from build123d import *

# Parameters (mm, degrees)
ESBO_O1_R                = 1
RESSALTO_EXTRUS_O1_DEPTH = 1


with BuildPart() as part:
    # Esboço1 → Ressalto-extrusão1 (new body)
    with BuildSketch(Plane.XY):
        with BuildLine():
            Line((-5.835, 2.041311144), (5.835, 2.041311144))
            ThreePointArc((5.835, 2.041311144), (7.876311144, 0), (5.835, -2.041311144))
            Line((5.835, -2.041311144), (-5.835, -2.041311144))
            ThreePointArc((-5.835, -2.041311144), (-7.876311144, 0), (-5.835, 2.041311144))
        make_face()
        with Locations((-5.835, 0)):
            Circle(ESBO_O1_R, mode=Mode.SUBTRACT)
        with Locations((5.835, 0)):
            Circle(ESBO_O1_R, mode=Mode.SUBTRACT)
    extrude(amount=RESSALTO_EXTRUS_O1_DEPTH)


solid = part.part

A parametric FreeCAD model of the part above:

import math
import FreeCAD as App
import Part
import Sketcher

doc = App.newDocument("Part")
body = doc.addObject("PartDesign::Body", "Body")

# Sketch on XY plane
sketch1 = body.newObject("Sketcher::SketchObject", "Sketch")
sketch1.AttachmentSupport = (doc.getObject("XY_Plane"), [""])
sketch1.MapMode = "FlatFace"
sketch1.addGeometry([
    Part.LineSegment(App.Vector(5.8, 2, 0), App.Vector(-5.8, 2, 0)),  # 0
    Part.ArcOfCircle(Part.Circle(App.Vector(-5.8, 0, 0), App.Vector(0, 0, 1), 2), math.radians(90), math.radians(270)),  # 1
    Part.LineSegment(App.Vector(-5.8, -2, 0), App.Vector(5.8, -2, 0)),  # 2
    Part.ArcOfCircle(Part.Circle(App.Vector(5.8, 0, 0), App.Vector(0, 0, 1), 2), math.radians(-90), math.radians(90)),  # 3
    Part.Circle(App.Vector(5.8, 0, 0), App.Vector(0, 0, 1), 1),  # 4
    Part.Circle(App.Vector(-5.8, 0, 0), App.Vector(0, 0, 1), 1),  # 5
], False)
sketch1.addConstraint([
    Sketcher.Constraint("Tangent", 0, 2, 1, 1),
    Sketcher.Constraint("Tangent", 1, 2, 2, 1),
    Sketcher.Constraint("Tangent", 2, 2, 3, 1),
    Sketcher.Constraint("Tangent", 3, 2, 0, 1),
    Sketcher.Constraint("Horizontal", 0),
    Sketcher.Constraint("Horizontal", 2),
    Sketcher.Constraint("Coincident", 4, 3, 3, 3),
    Sketcher.Constraint("Coincident", 5, 3, 1, 3),
    Sketcher.Constraint("Equal", 4, 5),
    Sketcher.Constraint("Symmetric", 1, 3, 3, 3, -1, 1),
    Sketcher.Constraint("Diameter", 4, 2.0),
    Sketcher.Constraint("DistanceX", 0, 2, 0, 1, 11.67),
    Sketcher.Constraint("Radius", 1, 2.041311),
])
pad1 = body.newObject("PartDesign::Pad", "Pad")
pad1.Profile = sketch1
pad1.Length = 1

doc.recompute()
